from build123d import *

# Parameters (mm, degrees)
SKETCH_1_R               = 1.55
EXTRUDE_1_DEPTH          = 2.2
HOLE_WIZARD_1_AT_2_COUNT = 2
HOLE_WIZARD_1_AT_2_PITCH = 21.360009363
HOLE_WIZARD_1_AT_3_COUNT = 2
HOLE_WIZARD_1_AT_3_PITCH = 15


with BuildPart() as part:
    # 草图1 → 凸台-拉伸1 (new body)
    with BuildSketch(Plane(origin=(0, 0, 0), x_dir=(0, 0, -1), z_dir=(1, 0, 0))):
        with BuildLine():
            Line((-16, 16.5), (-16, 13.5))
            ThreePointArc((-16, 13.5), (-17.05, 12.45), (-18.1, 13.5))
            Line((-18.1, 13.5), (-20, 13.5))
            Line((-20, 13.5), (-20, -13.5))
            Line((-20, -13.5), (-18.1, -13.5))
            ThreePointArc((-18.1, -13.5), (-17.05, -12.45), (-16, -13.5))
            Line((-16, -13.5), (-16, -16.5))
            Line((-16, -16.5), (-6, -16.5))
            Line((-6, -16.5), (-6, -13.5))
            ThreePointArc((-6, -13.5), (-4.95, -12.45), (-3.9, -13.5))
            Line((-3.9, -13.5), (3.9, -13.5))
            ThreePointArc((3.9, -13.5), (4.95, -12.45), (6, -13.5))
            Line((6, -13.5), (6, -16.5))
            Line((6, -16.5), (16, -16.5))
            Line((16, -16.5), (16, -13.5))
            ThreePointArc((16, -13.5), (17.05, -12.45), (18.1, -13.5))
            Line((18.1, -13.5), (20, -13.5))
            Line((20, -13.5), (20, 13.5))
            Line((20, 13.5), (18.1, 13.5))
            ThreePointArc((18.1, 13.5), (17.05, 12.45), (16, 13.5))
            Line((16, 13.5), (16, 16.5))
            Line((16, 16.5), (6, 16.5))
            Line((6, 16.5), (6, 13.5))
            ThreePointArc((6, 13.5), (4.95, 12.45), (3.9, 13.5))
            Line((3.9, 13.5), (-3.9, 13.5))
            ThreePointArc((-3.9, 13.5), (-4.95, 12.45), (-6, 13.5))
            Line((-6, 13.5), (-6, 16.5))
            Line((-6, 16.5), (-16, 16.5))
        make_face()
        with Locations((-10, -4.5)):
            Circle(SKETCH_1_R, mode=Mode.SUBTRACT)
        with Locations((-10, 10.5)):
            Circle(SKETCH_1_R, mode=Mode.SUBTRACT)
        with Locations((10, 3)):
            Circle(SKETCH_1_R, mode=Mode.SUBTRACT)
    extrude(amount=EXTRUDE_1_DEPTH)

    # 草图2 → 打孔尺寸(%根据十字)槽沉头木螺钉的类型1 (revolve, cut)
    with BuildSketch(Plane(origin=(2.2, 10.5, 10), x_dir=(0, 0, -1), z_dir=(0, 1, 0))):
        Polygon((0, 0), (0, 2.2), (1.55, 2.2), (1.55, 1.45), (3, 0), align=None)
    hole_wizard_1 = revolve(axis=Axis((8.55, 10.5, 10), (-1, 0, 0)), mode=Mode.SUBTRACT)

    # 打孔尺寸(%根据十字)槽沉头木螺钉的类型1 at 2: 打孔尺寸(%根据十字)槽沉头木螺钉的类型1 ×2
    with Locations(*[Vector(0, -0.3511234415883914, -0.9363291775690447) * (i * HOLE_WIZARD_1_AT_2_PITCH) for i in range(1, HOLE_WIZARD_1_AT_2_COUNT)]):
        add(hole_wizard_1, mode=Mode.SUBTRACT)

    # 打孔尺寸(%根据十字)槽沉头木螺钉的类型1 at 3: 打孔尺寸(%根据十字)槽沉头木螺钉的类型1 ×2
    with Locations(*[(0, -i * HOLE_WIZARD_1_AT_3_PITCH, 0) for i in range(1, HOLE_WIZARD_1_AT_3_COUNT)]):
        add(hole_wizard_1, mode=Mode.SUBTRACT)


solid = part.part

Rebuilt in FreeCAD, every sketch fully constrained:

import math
import FreeCAD as App
import Part
import Sketcher
from FreeCAD import Vector
Q = App.Units.Quantity

doc = App.newDocument("Part")
body = doc.addObject("PartDesign::Body", "Body")

# Sketch on YZ plane
sketch1 = body.newObject("Sketcher::SketchObject", "Sketch")
sketch1.AttachmentSupport = (doc.getObject("YZ_Plane"), [""])
sketch1.MapMode = "FlatFace"
sketch1.addGeometry([
    Part.LineSegment(Vector(16.5, 16, 0), Vector(13.5, 16, 0)),  # 0
    Part.ArcOfCircle(Part.Circle(Vector(13.5, 17.1, 0), Vector(0, 0, 1), 1.1), math.radians(90), math.radians(270)),  # 1
    Part.LineSegment(Vector(13.5, 18.1, 0), Vector(13.5, 20, 0)),  # 2
    Part.LineSegment(Vector(13.5, 20, 0), Vector(-13.5, 20, 0)),  # 3
    Part.LineSegment(Vector(-13.5, 20, 0), Vector(-13.5, 18.1, 0)),  # 4
    Part.ArcOfCircle(Part.Circle(Vector(-13.5, 17.1, 0), Vector(0, 0, 1), 1.1), math.radians(-90), math.radians(90)),  # 5
    Part.LineSegment(Vector(-13.5, 16, 0), Vector(-16.5, 16, 0)),  # 6
    Part.LineSegment(Vector(-16.5, 16, 0), Vector(-16.5, 6, 0)),  # 7
    Part.LineSegment(Vector(-16.5, 6, 0), Vector(-13.5, 6, 0)),  # 8
    Part.ArcOfCircle(Part.Circle(Vector(-13.5, 5, 0), Vector(0, 0, 1), 1.1), math.radians(-90), math.radians(90)),  # 9
    Part.LineSegment(Vector(-13.5, 3.9, 0), Vector(-13.5, -3.9, 0)),  # 10
    Part.ArcOfCircle(Part.Circle(Vector(-13.5, -5, 0), Vector(0, 0, 1), 1.1), math.radians(-90), math.radians(90)),  # 11
    Part.LineSegment(Vector(-13.5, -6, 0), Vector(-16.5, -6, 0)),  # 12
    Part.LineSegment(Vector(-16.5, -6, 0), Vector(-16.5, -16, 0)),  # 13
    Part.LineSegment(Vector(-16.5, -16, 0), Vector(-13.5, -16, 0)),  # 14
    Part.ArcOfCircle(Part.Circle(Vector(-13.5, -17.1, 0), Vector(0, 0, 1), 1.1), math.radians(-90), math.radians(90)),  # 15
    Part.LineSegment(Vector(-13.5, -18.1, 0), Vector(-13.5, -20, 0)),  # 16
    Part.LineSegment(Vector(-13.5, -20, 0), Vector(13.5, -20, 0)),  # 17
    Part.LineSegment(Vector(13.5, -20, 0), Vector(13.5, -18.1, 0)),  # 18
    Part.ArcOfCircle(Part.Circle(Vector(13.5, -17.1, 0), Vector(0, 0, 1), 1.1), math.radians(90), math.radians(270)),  # 19
    Part.LineSegment(Vector(13.5, -16, 0), Vector(16.5, -16, 0)),  # 20
    Part.LineSegment(Vector(16.5, -16, 0), Vector(16.5, -6, 0)),  # 21
    Part.LineSegment(Vector(16.5, -6, 0), Vector(13.5, -6, 0)),  # 22
    Part.ArcOfCircle(Part.Circle(Vector(13.5, -5, 0), Vector(0, 0, 1), 1.1), math.radians(90), math.radians(270)),  # 23
    Part.LineSegment(Vector(13.5, -3.9, 0), Vector(13.5, 3.9, 0)),  # 24
    Part.ArcOfCircle(Part.Circle(Vector(13.5, 5, 0), Vector(0, 0, 1), 1.1), math.radians(90), math.radians(270)),  # 25
    Part.LineSegment(Vector(13.5, 6, 0), Vector(16.5, 6, 0)),  # 26
    Part.LineSegment(Vector(16.5, 6, 0), Vector(16.5, 16, 0)),  # 27
    Part.Circle(Vector(-4.5, 10, 0), Vector(0, 0, 1), 1.6),  # 28
    Part.Circle(Vector(10.5, 10, 0), Vector(0, 0, 1), 1.6),  # 29
    Part.Circle(Vector(3, -10, 0), Vector(0, 0, 1), 1.6),  # 30
], False)
sketch1.addConstraint([
    Sketcher.Constraint("Tangent", 0, 2, 1, 2),
    Sketcher.Constraint("Coincident", 1, 1, 2, 1),
    Sketcher.Constraint("Coincident", 2, 2, 3, 1),
    Sketcher.Constraint("Coincident", 3, 2, 4, 1),
    Sketcher.Constraint("Coincident", 4, 2, 5, 2),
    Sketcher.Constraint("Tangent", 5, 1, 6, 1),
    Sketcher.Constraint("Coincident", 6, 2, 7, 1),
    Sketcher.Constraint("Coincident", 7, 2, 8, 1),
    Sketcher.Constraint("Tangent", 8, 2, 9, 2),
    Sketcher.Constraint("Coincident", 9, 1, 10, 1),
    Sketcher.Constraint("Coincident", 10, 2, 11, 2),
    Sketcher.Constraint("Tangent", 11, 1, 12, 1),
    Sketcher.Constraint("Coincident", 12, 2, 13, 1),
    Sketcher.Constraint("Coincident", 13, 2, 14, 1),
    Sketcher.Constraint("Tangent", 14, 2, 15, 2),
    Sketcher.Constraint("Coincident", 15, 1, 16, 1),
    Sketcher.Constraint("Coincident", 16, 2, 17, 1),
    Sketcher.Constraint("Coincident", 17, 2, 18, 1),
    Sketcher.Constraint("Coincident", 18, 2, 19, 2),
    Sketcher.Constraint("Tangent", 19, 1, 20, 1),
    Sketcher.Constraint("Coincident", 20, 2, 21, 1),
    Sketcher.Constraint("Coincident", 21, 2, 22, 1),
    Sketcher.Constraint("Tangent", 22, 2, 23, 2),
    Sketcher.Constraint("Coincident", 23, 1, 24, 1),
    Sketcher.Constraint("Coincident", 24, 2, 25, 2),
    Sketcher.Constraint("Tangent", 25, 1, 26, 1),
    Sketcher.Constraint("Coincident", 26, 2, 27, 1),
    Sketcher.Constraint("Coincident", 27, 2, 0, 1),
    Sketcher.Constraint("Horizontal", 0),
    Sketcher.Constraint("Vertical", 2),
    Sketcher.Constraint("Horizontal", 3),
    Sketcher.Constraint("Vertical", 4),
    Sketcher.Constraint("Horizontal", 6),
    Sketcher.Constraint("Vertical", 7),
    Sketcher.Constraint("Horizontal", 8),
    Sketcher.Constraint("Vertical", 10),
    Sketcher.Constraint("Horizontal", 12),
    Sketcher.Constraint("Vertical", 13),
    Sketcher.Constraint("Horizontal", 14),
    Sketcher.Constraint("Vertical", 16),
    Sketcher.Constraint("Horizontal", 17),
    Sketcher.Constraint("Vertical", 18),
    Sketcher.Constraint("Horizontal", 20),
    Sketcher.Constraint("Vertical", 21),
    Sketcher.Constraint("Horizontal", 22),
    Sketcher.Constraint("Vertical", 24),
    Sketcher.Constraint("Horizontal", 26),
    Sketcher.Constraint("Vertical", 27),
    Sketcher.Constraint("Equal", 1, 5),
    Sketcher.Constraint("Equal", 5, 9),
    Sketcher.Constraint("Equal", 9, 11),
    Sketcher.Constraint("Equal", 11, 15),
    Sketcher.Constraint("Equal", 15, 19),
    Sketcher.Constraint("Equal", 19, 23),
    Sketcher.Constraint("Equal", 23, 25),
    Sketcher.Constraint("Equal", 28, 29),
    Sketcher.Constraint("Equal", 29, 30),
    Sketcher.Constraint("Symmetric", 1, 3, 15, 3, -1, 1),
    Sketcher.Constraint("Symmetric", 5, 3, 19, 3, -1, 1),
    Sketcher.Constraint("Symmetric", 9, 3, 23, 3, -1, 1),
    Sketcher.Constraint("Symmetric", 11, 3, 25, 3, -1, 1),
    Sketcher.Constraint("Symmetric", 2, 2, 16, 2, -1, 1),
    Sketcher.Constraint("Symmetric", 1, 3, 5, 3, -2),
    Sketcher.Constraint("Symmetric", 11, 3, 23, 3, -2),
    Sketcher.Constraint("Horizontal", 28, 3, 29, 3),
    Sketcher.Constraint("Vertical", 5, 3, 9, 3),
    Sketcher.Constraint("Vertical", 0, 2, 1, 1),
    Sketcher.Constraint("Vertical", 15, 3, 3, 2),
    Sketcher.Constraint("Vertical", 8, 2, 9, 1),
    Sketcher.Constraint("Vertical", 7, 2, 12, 2),
    Sketcher.Constraint("Vertical", 2, 2, 17, 2),
    Sketcher.Constraint("Vertical", 22, 2, 23, 1),
    Sketcher.Constraint("Vertical", 21, 2, 26, 2),
    Sketcher.Constraint("Equal", 0, 6),
    Sketcher.Constraint("Diameter", 28, Q("3.1 mm")),
    Sketcher.Constraint("DistanceX", 0, 2, 0, 1, Q("3 mm")),
    Sketcher.Constraint("DistanceX", 3, 2, 3, 1, Q("27 mm")),
    Sketcher.Constraint("DistanceY", 7, 2, 7, 1, Q("10 mm")),
    Sketcher.Constraint("Radius", 1, Q("1.05 mm")),
    Sketcher.Constraint("DistanceY", 2, 1, 2, 2, Q("1.9 mm")),
    Sketcher.Constraint("DistanceY", 10, 2, 10, 1, Q("7.8 mm")),
    Sketcher.Constraint("DistanceY", -1, 1, 28, 3, Q("10 mm")),
    Sketcher.Constraint("DistanceX", -1, 1, 30, 3, Q("3 mm")),
    Sketcher.Constraint("DistanceY", 30, 3, -1, 1, Q("10 mm")),
    Sketcher.Constraint("DistanceX", 9, 3, 28, 3, Q("9 mm")),
    Sketcher.Constraint("DistanceX", 29, 3, 25, 3, Q("3 mm")),
])
pad1 = body.newObject("PartDesign::Pad", "Pad")
pad1.Profile = sketch1
pad1.Length = 2.2

# Sketch on XZ plane
sketch2 = body.newObject("Sketcher::SketchObject", "Sketch001")
sketch2.AttachmentSupport = (doc.getObject("XZ_Plane"), [""])
sketch2.MapMode = "FlatFace"
sketch2.AttachmentOffset = App.Placement(Vector(0, 0, -10.5), App.Rotation())
sketch2.addGeometry([
    Part.LineSegment(Vector(0, 10, 0), Vector(2.2, 10, 0)),  # 0
    Part.LineSegment(Vector(2.2, 10, 0), Vector(2.2, 7, 0)),  # 1
    Part.LineSegment(Vector(2.2, 7, 0), Vector(0.8, 8.4, 0)),  # 2
    Part.LineSegment(Vector(0.8, 8.4, 0), Vector(0, 8.4, 0)),  # 3
    Part.LineSegment(Vector(0, 8.4, 0), Vector(0, 10, 0)),  # 4
], False)
sketch2.addGeometry(Part.LineSegment(Vector(2.2, 10, 0), Vector(0, 10, 0)), True)  # axis
sketch2.addConstraint([
    Sketcher.Constraint("Coincident", 0, 2, 1, 1),
    Sketcher.Constraint("Coincident", 1, 2, 2, 1),
    Sketcher.Constraint("Coincident", 2, 2, 3, 1),
    Sketcher.Constraint("Coincident", 3, 2, 4, 1),
    Sketcher.Constraint("Coincident", 4, 2, 0, 1),
    Sketcher.Constraint("Horizontal", 0),
    Sketcher.Constraint("Vertical", 1),
    Sketcher.Constraint("Horizontal", 3),
    Sketcher.Constraint("Vertical", 4),
    Sketcher.Constraint("Horizontal", 5),
    Sketcher.Constraint("Coincident", 5, 1, 0, 2),
    Sketcher.Constraint("PointOnObject", 3, 2, -2),
    Sketcher.Constraint("PointOnObject", 5, 2, -2),
    Sketcher.Constraint("DistanceY", 1, 2, 1, 1, Q("3 mm")),
    Sketcher.Constraint("Angle", 2, Q("135 deg")),
    Sketcher.Constraint("DistanceX", 0, 1, 0, 2, Q("2.2 mm")),
    Sketcher.Constraint("DistanceY", -1, 1, 0, 2, Q("10 mm")),
    Sketcher.Constraint("DistanceX", 3, 2, 3, 1, Q("0.75 mm")),
])
groove = body.newObject("PartDesign::Groove", "Groove")
groove.Profile = sketch2
groove.ReferenceAxis = (sketch2, ["Axis0"])
groove.Angle = 360
doc.recompute()

datumline = body.newObject("PartDesign::Line", "DatumLine")
datumline.Placement = App.Placement(Vector(0, 0, 0), App.Rotation(Vector(0, 0, 1), Vector(0, -0.351123442, -0.936329178)))
linearpattern = body.newObject("PartDesign::LinearPattern", "LinearPattern")
linearpattern.Originals = [groove]
linearpattern.Direction = (datumline, [""])
linearpattern.Mode = "offset"
linearpattern.Offset = 21.360009
linearpattern.Occurrences = 2
body.Tip = linearpattern
doc.recompute()

linearpattern2 = body.newObject("PartDesign::LinearPattern", "LinearPattern001")
linearpattern2.Originals = [groove]
linearpattern2.Direction = (doc.getObject("Y_Axis"), [""])
linearpattern2.Mode = "offset"
linearpattern2.Offset = 15
linearpattern2.Occurrences = 2
linearpattern2.Reversed = True
body.Tip = linearpattern2

doc.recompute()
